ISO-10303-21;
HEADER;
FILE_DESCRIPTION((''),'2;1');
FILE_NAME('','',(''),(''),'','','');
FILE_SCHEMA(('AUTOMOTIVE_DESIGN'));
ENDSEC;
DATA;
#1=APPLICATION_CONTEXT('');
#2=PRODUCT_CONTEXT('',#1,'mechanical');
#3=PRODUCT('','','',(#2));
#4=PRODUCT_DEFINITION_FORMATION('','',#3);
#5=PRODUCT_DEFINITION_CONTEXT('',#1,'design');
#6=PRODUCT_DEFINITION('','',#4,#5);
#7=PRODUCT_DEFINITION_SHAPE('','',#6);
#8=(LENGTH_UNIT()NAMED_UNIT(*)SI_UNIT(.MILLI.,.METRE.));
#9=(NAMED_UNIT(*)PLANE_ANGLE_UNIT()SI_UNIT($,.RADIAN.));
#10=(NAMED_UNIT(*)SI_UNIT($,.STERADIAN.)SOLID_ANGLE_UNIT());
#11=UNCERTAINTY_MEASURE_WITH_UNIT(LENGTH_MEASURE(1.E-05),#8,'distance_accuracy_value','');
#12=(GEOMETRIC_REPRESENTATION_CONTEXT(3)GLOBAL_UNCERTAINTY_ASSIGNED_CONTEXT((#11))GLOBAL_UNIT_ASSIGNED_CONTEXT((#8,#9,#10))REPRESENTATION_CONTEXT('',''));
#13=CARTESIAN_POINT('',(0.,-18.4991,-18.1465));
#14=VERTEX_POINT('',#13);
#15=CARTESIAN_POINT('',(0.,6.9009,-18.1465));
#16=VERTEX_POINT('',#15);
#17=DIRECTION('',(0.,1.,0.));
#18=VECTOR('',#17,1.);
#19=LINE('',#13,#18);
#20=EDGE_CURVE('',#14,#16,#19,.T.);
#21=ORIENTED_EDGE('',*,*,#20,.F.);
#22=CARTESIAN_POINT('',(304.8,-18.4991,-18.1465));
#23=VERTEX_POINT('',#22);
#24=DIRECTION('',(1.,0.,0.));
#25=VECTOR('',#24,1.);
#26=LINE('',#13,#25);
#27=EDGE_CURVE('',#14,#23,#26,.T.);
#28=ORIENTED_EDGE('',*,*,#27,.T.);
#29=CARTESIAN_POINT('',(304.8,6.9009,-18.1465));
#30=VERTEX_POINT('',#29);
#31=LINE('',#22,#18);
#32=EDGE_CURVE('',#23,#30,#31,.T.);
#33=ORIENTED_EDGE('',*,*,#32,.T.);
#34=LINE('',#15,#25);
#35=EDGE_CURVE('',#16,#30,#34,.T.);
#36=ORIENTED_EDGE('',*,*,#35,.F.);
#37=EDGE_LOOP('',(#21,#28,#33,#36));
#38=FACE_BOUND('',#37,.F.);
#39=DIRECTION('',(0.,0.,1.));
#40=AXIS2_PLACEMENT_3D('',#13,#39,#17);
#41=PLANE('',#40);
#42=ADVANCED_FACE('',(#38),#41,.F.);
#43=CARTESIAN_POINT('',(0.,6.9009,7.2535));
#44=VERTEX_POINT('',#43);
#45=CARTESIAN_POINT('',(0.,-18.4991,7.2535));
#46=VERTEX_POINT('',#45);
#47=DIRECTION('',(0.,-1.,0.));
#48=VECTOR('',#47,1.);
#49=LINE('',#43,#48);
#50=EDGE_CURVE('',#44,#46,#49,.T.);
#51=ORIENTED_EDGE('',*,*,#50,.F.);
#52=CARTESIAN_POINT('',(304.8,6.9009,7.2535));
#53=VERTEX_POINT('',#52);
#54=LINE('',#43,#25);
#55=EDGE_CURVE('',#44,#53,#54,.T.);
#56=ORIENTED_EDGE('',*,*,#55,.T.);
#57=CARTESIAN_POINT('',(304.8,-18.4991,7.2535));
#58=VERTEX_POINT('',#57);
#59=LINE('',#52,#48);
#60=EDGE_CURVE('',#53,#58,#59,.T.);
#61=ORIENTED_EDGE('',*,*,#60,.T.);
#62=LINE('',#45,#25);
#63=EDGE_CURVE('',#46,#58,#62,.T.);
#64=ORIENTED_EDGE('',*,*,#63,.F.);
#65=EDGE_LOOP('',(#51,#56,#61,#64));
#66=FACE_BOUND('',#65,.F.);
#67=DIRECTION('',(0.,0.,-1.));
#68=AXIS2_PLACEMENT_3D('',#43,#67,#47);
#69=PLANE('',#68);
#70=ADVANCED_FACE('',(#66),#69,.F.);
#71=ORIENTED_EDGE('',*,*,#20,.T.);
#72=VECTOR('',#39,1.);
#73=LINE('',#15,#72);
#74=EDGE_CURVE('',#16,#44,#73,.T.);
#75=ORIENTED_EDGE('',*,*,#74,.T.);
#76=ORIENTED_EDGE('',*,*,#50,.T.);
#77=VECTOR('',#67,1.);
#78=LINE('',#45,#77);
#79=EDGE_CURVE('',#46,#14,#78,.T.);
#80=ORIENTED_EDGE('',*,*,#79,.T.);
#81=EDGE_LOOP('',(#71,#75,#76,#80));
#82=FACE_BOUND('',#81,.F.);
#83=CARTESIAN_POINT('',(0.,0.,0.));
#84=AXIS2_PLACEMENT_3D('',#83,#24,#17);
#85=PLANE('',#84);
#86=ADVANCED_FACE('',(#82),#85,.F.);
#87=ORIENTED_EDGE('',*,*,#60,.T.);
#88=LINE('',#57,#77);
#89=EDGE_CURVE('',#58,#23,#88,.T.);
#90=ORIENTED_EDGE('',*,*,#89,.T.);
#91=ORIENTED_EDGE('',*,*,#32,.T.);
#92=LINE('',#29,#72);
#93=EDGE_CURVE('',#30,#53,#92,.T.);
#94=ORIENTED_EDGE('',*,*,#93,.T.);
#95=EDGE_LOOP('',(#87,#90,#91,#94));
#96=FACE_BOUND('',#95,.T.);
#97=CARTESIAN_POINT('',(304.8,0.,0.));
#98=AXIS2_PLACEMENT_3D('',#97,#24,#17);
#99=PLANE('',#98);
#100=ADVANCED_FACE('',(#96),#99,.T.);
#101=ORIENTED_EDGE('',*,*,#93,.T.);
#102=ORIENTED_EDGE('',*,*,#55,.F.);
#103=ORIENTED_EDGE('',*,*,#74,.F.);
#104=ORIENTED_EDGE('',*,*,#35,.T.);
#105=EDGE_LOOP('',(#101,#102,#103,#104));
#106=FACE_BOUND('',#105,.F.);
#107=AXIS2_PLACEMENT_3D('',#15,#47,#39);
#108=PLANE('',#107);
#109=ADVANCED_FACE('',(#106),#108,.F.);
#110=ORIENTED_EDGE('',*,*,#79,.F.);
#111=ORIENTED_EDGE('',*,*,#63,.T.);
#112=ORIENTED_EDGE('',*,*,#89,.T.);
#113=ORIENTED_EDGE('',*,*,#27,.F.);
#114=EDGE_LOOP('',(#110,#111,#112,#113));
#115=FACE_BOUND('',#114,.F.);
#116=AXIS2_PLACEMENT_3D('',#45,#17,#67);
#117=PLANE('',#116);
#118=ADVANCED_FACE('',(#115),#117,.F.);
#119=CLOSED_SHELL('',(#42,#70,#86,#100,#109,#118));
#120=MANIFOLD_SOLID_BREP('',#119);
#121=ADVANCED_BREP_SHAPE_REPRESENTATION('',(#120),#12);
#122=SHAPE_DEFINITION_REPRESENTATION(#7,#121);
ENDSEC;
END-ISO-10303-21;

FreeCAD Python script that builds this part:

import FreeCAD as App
import Part
import Sketcher
Q = App.Units.Quantity


def add_polygon(sketch, points):
    """Adds a closed chain of lines whose ends are joined by coincident constraints."""
    first, n = sketch.GeometryCount, len(points)
    for a, b in zip(points, points[1:] + points[:1]):
        sketch.addGeometry(Part.LineSegment(App.Vector(*a, 0), App.Vector(*b, 0)), False)
    for i in range(n):
        sketch.addConstraint(Sketcher.Constraint("Coincident", first + i, 2, first + (i + 1) % n, 1))

doc = App.newDocument("Part")
body = doc.addObject("PartDesign::Body", "Body")

sketch1 = body.newObject("Sketcher::SketchObject", "Sketch")
sketch1.AttachmentSupport = (doc.getObject("YZ_Plane"), [""])
sketch1.MapMode = "FlatFace"
add_polygon(sketch1, [(7, -18), (7, 7), (-18, 7), (-18, -18)])
sketch1.addConstraint(Sketcher.Constraint("Vertical", 0))
sketch1.addConstraint(Sketcher.Constraint("Horizontal", 1))
sketch1.addConstraint(Sketcher.Constraint("Vertical", 2))
sketch1.addConstraint(Sketcher.Constraint("Horizontal", 3))
sketch1.addConstraint(Sketcher.Constraint("Equal", 3, 0))
sketch1.addConstraint(Sketcher.Constraint("DistanceX", 1, 2, 1, 1, Q("1 in")))
sketch1.addConstraint(Sketcher.Constraint("DistanceX", -1, 1, 0, 2, Q("0.2717 in")))
sketch1.addConstraint(Sketcher.Constraint("DistanceY", -1, 1, 0, 2, Q("7.2535 mm")))
pad1 = body.newObject("PartDesign::Pad", "Pad")
pad1.Profile = sketch1
pad1.Length = Q("12 in")

doc.recompute()
